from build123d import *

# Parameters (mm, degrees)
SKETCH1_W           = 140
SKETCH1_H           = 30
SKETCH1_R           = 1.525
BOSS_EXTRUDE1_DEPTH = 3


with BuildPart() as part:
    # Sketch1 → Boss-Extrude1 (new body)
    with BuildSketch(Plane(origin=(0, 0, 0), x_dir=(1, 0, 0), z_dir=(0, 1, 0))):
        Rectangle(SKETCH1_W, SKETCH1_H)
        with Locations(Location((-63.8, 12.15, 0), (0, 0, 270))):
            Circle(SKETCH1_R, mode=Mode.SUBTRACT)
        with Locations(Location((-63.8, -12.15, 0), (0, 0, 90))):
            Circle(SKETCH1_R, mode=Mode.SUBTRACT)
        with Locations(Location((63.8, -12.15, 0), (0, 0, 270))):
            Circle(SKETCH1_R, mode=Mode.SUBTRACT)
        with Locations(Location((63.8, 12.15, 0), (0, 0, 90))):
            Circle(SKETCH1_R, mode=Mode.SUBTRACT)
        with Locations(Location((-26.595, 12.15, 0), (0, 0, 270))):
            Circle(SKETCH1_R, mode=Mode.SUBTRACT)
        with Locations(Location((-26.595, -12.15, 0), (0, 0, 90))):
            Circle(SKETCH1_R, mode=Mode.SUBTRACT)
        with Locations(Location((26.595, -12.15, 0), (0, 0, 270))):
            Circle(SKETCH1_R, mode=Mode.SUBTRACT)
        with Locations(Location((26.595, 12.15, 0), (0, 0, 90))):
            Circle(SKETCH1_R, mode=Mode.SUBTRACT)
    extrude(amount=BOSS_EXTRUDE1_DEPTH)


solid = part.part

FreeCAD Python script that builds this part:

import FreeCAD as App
import Part
import Sketcher

V = App.Vector
Q = App.Units.Quantity

doc = App.newDocument("Part")
body = doc.addObject("PartDesign::Body", "Body")

sketch1 = body.newObject("Sketcher::SketchObject", "Sketch")
sketch1.AttachmentSupport = (doc.getObject("XZ_Plane"), [""])
sketch1.MapMode = "FlatFace"
sketch1.addGeometry([
    Part.LineSegment(V(-70, -15, 0), V(-70, 15, 0)),
    Part.LineSegment(V(-70, 15, 0), V(70, 15, 0)),
    Part.LineSegment(V(70, 15, 0), V(70, -15, 0)),
    Part.LineSegment(V(70, -15, 0), V(-70, -15, 0)),
    Part.Circle(V(-63.8, 12.2, 0), V(0, 0, 1), 1.5),
    Part.Circle(V(-26.6, 12.2, 0), V(0, 0, 1), 1.5),
    Part.Circle(V(26.6, 12.2, 0), V(0, 0, 1), 1.5),
    Part.Circle(V(63.8, 12.2, 0), V(0, 0, 1), 1.5),
    Part.Circle(V(-63.8, -12.2, 0), V(0, 0, 1), 1.5),
    Part.Circle(V(-26.6, -12.2, 0), V(0, 0, 1), 1.5),
    Part.Circle(V(26.6, -12.2, 0), V(0, 0, 1), 1.5),
    Part.Circle(V(63.8, -12.2, 0), V(0, 0, 1), 1.5),
], False)
sketch1.addConstraint([
    Sketcher.Constraint("Coincident", 0, 2, 1, 1),
    Sketcher.Constraint("Coincident", 1, 2, 2, 1),
    Sketcher.Constraint("Coincident", 2, 2, 3, 1),
    Sketcher.Constraint("Coincident", 3, 2, 0, 1),
    Sketcher.Constraint("Vertical", 0),
    Sketcher.Constraint("Horizontal", 1),
    Sketcher.Constraint("Vertical", 2),
    Sketcher.Constraint("Horizontal", 3),
    Sketcher.Constraint("Equal", 4, 5),
    Sketcher.Constraint("Equal", 5, 6),
    Sketcher.Constraint("Equal", 6, 7),
    Sketcher.Constraint("Equal", 7, 8),
    Sketcher.Constraint("Equal", 8, 9),
    Sketcher.Constraint("Equal", 9, 10),
    Sketcher.Constraint("Equal", 10, 11),
    Sketcher.Constraint("Symmetric", 7, 3, 8, 3, -1, 1),
    Sketcher.Constraint("Symmetric", 6, 3, 9, 3, -1, 1),
    Sketcher.Constraint("Symmetric", 5, 3, 10, 3, -1, 1),
    Sketcher.Constraint("Symmetric", 4, 3, 11, 3, -1, 1),
    Sketcher.Constraint("Symmetric", 0, 2, 2, 2, -1, 1),
    Sketcher.Constraint("Symmetric", 5, 3, 6, 3, -2),
    Sketcher.Constraint("Symmetric", 4, 3, 7, 3, -2),
    Sketcher.Constraint("Horizontal", 4, 3, 5, 3),
    Sketcher.Constraint("Diameter", 4, Q("3.05 mm")),
    Sketcher.Constraint("DistanceX", 1, 1, 1, 2, Q("140 mm")),
    Sketcher.Constraint("DistanceY", 0, 1, 0, 2, Q("30 mm")),
    Sketcher.Constraint("DistanceX", 4, 3, -1, 1, Q("63.8 mm")),
    Sketcher.Constraint("DistanceY", 8, 3, 4, 3, Q("24.3 mm")),
    Sketcher.Constraint("DistanceX", 5, 3, 6, 3, Q("53.19 mm")),
])
pad1 = body.newObject("PartDesign::Pad", "Pad")
pad1.Profile = sketch1
pad1.Length = 3
pad1.Reversed = True

doc.recompute()
